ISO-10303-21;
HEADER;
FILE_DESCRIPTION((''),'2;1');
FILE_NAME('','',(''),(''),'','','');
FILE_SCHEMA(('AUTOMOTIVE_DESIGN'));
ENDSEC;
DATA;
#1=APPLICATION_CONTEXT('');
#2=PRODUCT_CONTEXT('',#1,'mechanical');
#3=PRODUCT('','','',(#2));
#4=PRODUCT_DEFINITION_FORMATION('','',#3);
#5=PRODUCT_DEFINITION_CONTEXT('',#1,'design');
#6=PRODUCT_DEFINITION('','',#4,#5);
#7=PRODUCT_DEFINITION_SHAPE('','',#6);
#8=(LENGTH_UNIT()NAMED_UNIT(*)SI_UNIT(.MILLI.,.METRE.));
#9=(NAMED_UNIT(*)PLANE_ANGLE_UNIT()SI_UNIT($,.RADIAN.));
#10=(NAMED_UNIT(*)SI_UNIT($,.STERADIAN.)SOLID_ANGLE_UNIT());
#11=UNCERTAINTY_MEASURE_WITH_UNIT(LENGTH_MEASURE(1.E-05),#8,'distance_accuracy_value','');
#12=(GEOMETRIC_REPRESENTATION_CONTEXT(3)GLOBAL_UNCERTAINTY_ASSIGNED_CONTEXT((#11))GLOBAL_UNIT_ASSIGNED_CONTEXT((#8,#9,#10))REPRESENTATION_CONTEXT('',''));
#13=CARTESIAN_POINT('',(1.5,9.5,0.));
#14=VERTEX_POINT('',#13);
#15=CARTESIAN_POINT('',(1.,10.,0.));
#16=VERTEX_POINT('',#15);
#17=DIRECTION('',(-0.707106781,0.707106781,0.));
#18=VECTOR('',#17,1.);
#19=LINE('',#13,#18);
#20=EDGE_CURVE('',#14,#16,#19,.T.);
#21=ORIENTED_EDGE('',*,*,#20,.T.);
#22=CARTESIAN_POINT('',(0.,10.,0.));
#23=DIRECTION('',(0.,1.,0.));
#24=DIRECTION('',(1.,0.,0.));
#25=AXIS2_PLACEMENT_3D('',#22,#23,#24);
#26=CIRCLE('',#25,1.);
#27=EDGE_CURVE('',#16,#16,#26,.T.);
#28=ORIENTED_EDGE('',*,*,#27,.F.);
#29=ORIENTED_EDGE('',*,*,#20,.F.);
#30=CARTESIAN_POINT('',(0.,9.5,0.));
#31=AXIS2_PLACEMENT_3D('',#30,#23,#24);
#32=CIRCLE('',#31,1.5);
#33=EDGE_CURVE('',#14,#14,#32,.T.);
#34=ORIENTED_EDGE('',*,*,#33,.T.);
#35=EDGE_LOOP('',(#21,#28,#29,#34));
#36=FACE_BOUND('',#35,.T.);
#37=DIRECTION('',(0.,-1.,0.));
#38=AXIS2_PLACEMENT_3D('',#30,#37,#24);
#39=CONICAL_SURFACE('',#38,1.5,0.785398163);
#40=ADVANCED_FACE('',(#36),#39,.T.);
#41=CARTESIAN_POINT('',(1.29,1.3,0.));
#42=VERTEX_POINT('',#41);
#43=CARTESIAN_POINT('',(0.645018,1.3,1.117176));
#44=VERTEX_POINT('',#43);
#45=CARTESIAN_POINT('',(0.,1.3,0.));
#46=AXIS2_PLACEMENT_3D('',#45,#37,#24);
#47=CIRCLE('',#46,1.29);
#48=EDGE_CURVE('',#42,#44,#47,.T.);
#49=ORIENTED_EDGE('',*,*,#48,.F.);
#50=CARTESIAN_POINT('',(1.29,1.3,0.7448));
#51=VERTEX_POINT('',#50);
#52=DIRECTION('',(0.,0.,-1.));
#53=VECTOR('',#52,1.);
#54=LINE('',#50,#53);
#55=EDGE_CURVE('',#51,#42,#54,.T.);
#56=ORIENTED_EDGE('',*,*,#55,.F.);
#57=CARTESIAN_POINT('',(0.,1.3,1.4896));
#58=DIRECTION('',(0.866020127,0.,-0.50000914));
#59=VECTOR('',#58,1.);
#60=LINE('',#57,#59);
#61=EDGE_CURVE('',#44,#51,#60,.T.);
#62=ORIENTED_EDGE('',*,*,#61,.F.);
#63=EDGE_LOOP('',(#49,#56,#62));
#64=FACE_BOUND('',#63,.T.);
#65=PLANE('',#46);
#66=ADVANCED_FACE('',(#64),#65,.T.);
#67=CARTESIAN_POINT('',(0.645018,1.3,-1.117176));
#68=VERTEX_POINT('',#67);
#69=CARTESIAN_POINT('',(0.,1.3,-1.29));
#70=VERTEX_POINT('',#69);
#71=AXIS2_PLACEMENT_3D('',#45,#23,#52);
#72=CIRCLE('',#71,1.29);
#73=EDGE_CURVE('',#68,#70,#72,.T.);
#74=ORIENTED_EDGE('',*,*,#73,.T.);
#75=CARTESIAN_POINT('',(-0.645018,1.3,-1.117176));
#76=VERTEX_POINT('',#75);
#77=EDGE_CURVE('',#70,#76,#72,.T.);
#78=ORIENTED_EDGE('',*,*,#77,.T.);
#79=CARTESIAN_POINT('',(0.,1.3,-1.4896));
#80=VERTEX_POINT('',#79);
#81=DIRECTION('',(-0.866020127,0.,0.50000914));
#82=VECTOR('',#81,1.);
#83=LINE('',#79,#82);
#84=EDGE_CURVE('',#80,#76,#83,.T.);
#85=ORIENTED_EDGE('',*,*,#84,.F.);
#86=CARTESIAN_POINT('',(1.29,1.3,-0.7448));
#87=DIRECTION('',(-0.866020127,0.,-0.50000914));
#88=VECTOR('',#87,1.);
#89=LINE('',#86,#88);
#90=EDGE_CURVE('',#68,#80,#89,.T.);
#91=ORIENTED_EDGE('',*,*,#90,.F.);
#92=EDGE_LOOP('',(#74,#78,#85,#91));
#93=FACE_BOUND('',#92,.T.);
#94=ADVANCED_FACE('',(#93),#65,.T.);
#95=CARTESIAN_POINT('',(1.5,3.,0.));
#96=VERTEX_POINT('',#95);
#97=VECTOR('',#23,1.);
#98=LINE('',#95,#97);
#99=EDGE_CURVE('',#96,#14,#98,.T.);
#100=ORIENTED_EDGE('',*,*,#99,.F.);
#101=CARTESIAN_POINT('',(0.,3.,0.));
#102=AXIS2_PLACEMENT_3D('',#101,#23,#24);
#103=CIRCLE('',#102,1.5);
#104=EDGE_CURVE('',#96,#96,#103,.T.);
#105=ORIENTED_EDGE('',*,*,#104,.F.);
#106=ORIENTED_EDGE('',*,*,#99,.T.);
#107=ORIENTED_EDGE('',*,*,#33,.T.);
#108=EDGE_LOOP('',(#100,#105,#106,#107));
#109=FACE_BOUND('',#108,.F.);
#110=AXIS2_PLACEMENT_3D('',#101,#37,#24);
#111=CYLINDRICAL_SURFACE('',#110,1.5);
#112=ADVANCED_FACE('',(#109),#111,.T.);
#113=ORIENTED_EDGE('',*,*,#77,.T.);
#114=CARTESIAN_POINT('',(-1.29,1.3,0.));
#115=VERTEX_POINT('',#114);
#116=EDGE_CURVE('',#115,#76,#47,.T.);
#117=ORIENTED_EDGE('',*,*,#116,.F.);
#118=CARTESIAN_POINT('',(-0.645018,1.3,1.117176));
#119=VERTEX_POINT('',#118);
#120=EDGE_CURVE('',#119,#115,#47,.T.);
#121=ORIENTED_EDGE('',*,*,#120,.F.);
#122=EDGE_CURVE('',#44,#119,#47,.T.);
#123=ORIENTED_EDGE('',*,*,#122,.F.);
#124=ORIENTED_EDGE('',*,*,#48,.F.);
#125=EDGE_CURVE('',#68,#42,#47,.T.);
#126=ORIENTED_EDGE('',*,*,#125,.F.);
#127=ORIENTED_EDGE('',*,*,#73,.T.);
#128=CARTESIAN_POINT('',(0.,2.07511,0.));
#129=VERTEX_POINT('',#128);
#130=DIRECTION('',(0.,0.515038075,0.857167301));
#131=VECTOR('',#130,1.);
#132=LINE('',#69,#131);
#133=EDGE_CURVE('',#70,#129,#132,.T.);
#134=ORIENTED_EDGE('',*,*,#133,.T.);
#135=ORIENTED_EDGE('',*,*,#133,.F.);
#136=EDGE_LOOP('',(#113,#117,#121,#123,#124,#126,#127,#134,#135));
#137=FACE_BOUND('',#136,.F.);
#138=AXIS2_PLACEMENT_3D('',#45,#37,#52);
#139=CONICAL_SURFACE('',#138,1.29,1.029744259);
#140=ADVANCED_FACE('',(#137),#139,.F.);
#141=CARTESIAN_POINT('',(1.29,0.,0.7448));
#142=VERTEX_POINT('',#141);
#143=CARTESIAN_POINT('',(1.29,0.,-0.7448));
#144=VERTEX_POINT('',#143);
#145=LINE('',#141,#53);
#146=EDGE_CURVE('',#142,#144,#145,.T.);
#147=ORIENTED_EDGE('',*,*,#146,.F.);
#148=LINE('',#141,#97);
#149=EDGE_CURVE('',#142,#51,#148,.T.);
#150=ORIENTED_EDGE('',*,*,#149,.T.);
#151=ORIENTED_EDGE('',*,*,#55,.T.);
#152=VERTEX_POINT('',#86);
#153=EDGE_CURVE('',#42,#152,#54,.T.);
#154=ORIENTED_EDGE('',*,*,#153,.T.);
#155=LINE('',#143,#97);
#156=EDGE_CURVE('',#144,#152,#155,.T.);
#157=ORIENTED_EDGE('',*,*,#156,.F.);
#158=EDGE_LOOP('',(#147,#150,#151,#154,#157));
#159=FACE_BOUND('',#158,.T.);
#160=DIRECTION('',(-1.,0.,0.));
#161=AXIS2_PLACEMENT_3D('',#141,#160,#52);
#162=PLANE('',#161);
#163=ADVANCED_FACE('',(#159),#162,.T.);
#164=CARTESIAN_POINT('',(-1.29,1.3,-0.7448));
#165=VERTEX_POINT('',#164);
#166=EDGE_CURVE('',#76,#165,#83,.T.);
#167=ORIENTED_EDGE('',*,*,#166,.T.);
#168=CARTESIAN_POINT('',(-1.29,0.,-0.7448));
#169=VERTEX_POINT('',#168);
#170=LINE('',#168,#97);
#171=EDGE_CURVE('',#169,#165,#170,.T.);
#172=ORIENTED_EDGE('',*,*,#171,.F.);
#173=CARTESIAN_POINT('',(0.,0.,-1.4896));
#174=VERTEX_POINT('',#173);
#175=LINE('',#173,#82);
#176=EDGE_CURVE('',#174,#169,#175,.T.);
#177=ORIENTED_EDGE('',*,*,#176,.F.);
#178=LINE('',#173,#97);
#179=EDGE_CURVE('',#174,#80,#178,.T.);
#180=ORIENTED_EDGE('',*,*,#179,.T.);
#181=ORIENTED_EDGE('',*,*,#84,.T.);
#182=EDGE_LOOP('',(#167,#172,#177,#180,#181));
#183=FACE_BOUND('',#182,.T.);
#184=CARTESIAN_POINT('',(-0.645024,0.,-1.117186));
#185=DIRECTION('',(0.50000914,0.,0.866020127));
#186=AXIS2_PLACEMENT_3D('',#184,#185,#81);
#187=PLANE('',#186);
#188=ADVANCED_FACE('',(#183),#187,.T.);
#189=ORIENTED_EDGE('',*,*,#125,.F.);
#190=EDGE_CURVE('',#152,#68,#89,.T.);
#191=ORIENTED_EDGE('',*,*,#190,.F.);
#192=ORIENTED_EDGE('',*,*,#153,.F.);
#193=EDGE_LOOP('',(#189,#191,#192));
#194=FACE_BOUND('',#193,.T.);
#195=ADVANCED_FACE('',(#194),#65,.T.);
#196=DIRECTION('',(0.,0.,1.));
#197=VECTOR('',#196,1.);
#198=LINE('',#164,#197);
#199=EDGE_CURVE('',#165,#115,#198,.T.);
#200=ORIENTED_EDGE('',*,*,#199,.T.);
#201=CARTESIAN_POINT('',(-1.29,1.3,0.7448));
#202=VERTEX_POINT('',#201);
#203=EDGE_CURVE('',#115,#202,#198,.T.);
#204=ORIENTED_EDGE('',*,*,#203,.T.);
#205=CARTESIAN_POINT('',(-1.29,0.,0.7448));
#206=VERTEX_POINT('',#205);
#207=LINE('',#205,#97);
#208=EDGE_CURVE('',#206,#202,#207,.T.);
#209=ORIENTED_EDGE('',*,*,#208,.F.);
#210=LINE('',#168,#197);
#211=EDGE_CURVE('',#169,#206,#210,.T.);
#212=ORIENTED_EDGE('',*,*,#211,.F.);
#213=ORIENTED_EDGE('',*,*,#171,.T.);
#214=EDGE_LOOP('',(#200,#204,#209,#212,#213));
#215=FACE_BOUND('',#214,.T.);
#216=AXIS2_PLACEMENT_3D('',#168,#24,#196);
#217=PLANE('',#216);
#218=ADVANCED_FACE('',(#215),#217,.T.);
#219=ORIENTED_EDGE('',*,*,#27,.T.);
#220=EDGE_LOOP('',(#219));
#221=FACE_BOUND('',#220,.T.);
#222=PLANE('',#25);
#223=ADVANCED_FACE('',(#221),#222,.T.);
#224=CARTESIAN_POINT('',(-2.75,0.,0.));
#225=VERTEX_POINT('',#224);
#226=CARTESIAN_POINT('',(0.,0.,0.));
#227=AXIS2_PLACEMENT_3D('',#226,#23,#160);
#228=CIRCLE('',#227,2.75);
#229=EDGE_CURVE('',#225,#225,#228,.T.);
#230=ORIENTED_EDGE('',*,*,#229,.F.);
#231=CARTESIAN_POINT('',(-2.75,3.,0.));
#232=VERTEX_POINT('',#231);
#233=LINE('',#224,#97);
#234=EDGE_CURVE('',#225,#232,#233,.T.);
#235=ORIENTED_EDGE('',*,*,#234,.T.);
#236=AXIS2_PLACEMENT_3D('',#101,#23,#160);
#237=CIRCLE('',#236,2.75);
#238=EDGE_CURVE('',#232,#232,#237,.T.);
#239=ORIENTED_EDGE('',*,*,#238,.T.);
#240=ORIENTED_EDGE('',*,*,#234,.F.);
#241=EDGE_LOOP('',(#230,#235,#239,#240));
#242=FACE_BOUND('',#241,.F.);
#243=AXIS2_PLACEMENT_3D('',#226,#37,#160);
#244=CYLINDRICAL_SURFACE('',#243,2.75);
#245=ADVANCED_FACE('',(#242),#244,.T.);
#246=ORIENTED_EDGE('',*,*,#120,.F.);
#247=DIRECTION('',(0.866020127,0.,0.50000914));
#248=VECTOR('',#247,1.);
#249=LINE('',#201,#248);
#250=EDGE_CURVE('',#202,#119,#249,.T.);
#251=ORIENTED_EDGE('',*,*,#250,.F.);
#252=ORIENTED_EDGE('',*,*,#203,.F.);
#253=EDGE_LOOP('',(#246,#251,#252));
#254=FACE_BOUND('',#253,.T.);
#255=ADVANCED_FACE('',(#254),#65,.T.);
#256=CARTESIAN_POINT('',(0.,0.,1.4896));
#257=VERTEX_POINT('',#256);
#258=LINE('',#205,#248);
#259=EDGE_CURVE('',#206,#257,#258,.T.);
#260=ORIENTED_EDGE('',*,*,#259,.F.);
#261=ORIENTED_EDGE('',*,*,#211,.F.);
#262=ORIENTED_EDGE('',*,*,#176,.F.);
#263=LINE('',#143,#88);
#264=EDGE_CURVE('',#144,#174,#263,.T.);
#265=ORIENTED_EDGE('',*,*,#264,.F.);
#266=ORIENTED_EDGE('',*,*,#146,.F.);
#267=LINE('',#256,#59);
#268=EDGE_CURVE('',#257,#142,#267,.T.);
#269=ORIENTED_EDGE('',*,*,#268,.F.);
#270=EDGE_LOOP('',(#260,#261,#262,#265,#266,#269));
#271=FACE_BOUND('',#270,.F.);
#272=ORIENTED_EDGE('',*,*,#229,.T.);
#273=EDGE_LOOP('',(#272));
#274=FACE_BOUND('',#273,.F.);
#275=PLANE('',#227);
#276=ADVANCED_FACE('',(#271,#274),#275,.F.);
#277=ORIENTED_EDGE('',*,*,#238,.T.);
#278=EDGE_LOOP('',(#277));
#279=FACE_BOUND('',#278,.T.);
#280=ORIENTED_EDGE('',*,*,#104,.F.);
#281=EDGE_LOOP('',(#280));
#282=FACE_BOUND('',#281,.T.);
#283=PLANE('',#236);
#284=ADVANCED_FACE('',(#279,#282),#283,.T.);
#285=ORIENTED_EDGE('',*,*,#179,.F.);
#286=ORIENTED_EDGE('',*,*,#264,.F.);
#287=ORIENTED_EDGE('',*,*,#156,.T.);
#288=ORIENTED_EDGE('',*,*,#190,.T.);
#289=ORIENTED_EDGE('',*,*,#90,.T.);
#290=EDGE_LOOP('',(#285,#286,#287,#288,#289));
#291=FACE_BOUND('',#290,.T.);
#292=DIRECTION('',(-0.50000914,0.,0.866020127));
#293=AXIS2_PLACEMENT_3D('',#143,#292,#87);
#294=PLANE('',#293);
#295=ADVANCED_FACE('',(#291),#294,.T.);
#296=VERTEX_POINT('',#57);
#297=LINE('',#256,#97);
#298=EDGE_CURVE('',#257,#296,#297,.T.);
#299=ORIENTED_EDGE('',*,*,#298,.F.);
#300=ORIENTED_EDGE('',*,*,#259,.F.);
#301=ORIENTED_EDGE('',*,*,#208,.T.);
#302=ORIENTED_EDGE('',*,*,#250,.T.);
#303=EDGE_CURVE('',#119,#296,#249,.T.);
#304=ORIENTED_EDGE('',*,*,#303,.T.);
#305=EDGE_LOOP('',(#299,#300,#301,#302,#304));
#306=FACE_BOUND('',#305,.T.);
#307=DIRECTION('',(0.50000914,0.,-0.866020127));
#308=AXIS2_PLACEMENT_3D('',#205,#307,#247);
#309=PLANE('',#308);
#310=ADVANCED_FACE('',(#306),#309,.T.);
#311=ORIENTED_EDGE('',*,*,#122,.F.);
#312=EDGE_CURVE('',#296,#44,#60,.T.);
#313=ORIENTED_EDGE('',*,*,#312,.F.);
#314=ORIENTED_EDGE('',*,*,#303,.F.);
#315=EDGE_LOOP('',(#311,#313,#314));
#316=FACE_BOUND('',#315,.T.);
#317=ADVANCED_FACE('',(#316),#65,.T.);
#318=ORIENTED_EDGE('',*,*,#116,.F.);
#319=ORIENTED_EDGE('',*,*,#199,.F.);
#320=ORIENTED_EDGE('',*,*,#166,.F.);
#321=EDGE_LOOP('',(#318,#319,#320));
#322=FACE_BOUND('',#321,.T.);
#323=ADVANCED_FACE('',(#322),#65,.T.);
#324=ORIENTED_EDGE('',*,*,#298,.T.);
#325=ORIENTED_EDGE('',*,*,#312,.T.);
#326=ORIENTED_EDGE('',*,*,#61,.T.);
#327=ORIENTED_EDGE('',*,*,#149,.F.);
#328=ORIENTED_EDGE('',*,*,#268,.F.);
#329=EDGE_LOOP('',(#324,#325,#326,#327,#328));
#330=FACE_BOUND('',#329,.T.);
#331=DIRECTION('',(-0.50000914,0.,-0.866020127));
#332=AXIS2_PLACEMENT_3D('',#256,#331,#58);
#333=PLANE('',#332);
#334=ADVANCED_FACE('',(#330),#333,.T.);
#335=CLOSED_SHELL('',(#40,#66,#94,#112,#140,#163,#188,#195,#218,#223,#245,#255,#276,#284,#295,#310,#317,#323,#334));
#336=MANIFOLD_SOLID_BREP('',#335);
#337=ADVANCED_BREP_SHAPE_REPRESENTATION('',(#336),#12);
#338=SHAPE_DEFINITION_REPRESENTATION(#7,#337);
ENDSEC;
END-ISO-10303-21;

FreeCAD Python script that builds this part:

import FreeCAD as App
import Part
import Sketcher
from FreeCAD import Vector
Q = App.Units.Quantity


def edges_at(feature, points):
    """Names of the edges that pass closest to the given points."""
    edges = feature.Shape.Edges
    near = lambda p: min(range(len(edges)), key=lambda i: edges[i].distToShape(Part.Vertex(*p))[0])
    return sorted({f"Edge{near(p) + 1}" for p in points})


def add_polygon(sketch, points):
    """Adds a closed chain of lines whose ends are joined by coincident constraints."""
    first, n = sketch.GeometryCount, len(points)
    for a, b in zip(points, points[1:] + points[:1]):
        sketch.addGeometry(Part.LineSegment(App.Vector(*a, 0), App.Vector(*b, 0)), False)
    for i in range(n):
        sketch.addConstraint(Sketcher.Constraint("Coincident", first + i, 2, first + (i + 1) % n, 1))

doc = App.newDocument("Part")
body = doc.addObject("PartDesign::Body", "Body")

# Sketch on XZ plane
sketch1 = doc.addObject("Sketcher::SketchObject", "Sketch")
body.addObject(sketch1)
sketch1.AttachmentSupport = (doc.XZ_Plane, [""])
sketch1.MapMode = "FlatFace"
sketch1.addGeometry(Part.Circle(Vector(0, 0, 0), Vector(0, 0, 1), 2.8), False)
sketch1.addConstraint([
    Sketcher.Constraint("Coincident", 0, 3, -1, 1),
    Sketcher.Constraint("Diameter", 0, Q("5.5 mm")),
])
pad1 = doc.addObject("PartDesign::Pad", "Pad")
body.addObject(pad1)
pad1.Profile = sketch1
pad1.Length = 3
pad1.Reversed = True

# Sketch on XZ plane
sketch2 = doc.addObject("Sketcher::SketchObject", "Sketch001")
body.addObject(sketch2)
sketch2.AttachmentSupport = (doc.XZ_Plane, [""])
sketch2.MapMode = "FlatFace"
sketch2.addGeometry(Part.Circle(Vector(0, 0, 0), Vector(0, 0, 1), 1.3), False)
sketch2.addConstraint([
    Sketcher.Constraint("Coincident", 0, 3, -1, 1),
    Sketcher.Constraint("Diameter", 0, Q("2.58 mm")),
])
doc.recompute()
hole = doc.addObject("PartDesign::Hole", "Hole")
body.addObject(hole)
hole.Profile = sketch2
hole.ThreadType = "None"
hole.Diameter = 2.58
hole.DepthType = "Dimension"
hole.Depth = 1.3
hole.DrillPoint = "Angled"
hole.DrillPointAngle = 118

# Sketch on XZ plane
sketch3 = doc.addObject("Sketcher::SketchObject", "Sketch002")
body.addObject(sketch3)
sketch3.AttachmentSupport = (doc.XZ_Plane, [""])
sketch3.MapMode = "FlatFace"
add_polygon(sketch3, [(1.3, -0.7), (1.3, 0.7), (0, 1.5), (-1.3, 0.7), (-1.3, -0.7), (0, -1.5)])  # lines 0-5
sketch3.addConstraint([
    Sketcher.Constraint("Vertical", 0),
    Sketcher.Constraint("Vertical", 3),
    Sketcher.Constraint("Symmetric", 0, 2, 3, 2, -1, 1),
    Sketcher.Constraint("Symmetric", 1, 2, 4, 2, -1, 1),
    Sketcher.Constraint("PointOnObject", 1, 2, -2),
    Sketcher.Constraint("Parallel", 2, 5),
    Sketcher.Constraint("Horizontal", 0, 2, 2, 2),
    Sketcher.Constraint("Angle", 1, Q("149.9994 deg")),
    Sketcher.Constraint("DistanceX", -1, 1, 0, 2, Q("1.29 mm")),
    Sketcher.Constraint("DistanceY", 0, 1, 0, 2, Q("1.4896 mm")),
])
pocket1 = doc.addObject("PartDesign::Pocket", "Pocket")
body.addObject(pocket1)
pocket1.Profile = sketch3
pocket1.Length = 1.3

# Sketch on XZ plane
sketch4 = doc.addObject("Sketcher::SketchObject", "Sketch003")
body.addObject(sketch4)
sketch4.AttachmentSupport = (doc.XZ_Plane, [""])
sketch4.MapMode = "FlatFace"
sketch4.AttachmentOffset = App.Placement(Vector(0, 0, -3), App.Rotation())
sketch4.addGeometry(Part.Circle(Vector(0, 0, 0), Vector(0, 0, 1), 1.5), False)
sketch4.addConstraint([
    Sketcher.Constraint("Coincident", 0, 3, -1, 1),
    Sketcher.Constraint("Diameter", 0, Q("3 mm")),
])
pad2 = doc.addObject("PartDesign::Pad", "Pad001")
body.addObject(pad2)
pad2.Profile = sketch4
pad2.Length = 7
pad2.Reversed = True
doc.recompute()

chamfer = doc.addObject("PartDesign::Chamfer", "Chamfer")
body.addObject(chamfer)
chamfer.Base = (pad2, edges_at(pad2, [(-1.5, 10, 0)]))
chamfer.Size = 0.5

doc.recompute()
